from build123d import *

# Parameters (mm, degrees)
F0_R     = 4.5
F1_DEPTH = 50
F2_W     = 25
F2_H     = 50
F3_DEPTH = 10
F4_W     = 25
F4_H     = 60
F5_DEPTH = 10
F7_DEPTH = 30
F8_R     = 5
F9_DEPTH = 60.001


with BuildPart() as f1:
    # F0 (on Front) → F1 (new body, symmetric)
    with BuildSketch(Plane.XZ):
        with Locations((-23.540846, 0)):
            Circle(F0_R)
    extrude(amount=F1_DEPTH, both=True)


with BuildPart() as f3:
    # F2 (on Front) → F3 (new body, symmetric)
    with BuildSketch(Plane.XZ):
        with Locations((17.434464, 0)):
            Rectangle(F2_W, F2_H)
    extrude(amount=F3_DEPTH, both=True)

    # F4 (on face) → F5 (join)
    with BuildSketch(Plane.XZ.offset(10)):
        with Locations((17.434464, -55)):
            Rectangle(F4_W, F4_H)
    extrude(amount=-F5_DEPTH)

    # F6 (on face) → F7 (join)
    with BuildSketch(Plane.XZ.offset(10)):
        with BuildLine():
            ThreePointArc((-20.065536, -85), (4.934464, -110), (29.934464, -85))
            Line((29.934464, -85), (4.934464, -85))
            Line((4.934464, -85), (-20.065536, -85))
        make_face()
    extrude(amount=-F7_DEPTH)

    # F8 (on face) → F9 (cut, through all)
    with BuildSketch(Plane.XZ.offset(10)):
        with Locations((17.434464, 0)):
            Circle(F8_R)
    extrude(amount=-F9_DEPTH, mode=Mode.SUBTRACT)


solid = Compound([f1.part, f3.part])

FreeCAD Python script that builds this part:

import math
import FreeCAD as App
import Part
import Sketcher
from FreeCAD import Vector


def add_polygon(sketch, points):
    """Adds a closed chain of lines whose ends are joined by coincident constraints."""
    first, n = sketch.GeometryCount, len(points)
    for a, b in zip(points, points[1:] + points[:1]):
        sketch.addGeometry(Part.LineSegment(App.Vector(*a, 0), App.Vector(*b, 0)), False)
    for i in range(n):
        sketch.addConstraint(Sketcher.Constraint("Coincident", first + i, 2, first + (i + 1) % n, 1))

doc = App.newDocument("Part")
body = doc.addObject("PartDesign::Body", "Body")

# Sketch on XZ plane
sketch1 = body.newObject("Sketcher::SketchObject", "Sketch")
sketch1.AttachmentSupport = (doc.getObject("XZ_Plane"), [""])
sketch1.MapMode = "FlatFace"
sketch1.addGeometry(Part.Circle(Vector(-23.540846, 0, 0), Vector(0, 0, 1), 4.5), False)
sketch1.addConstraint([
    Sketcher.Constraint("PointOnObject", 0, 3, -1),
    Sketcher.Constraint("Diameter", 0, 9.0),
    Sketcher.Constraint("DistanceX", 0, 3, -1, 1, 23.540846),
])
pad1 = body.newObject("PartDesign::Pad", "Pad")
pad1.Profile = sketch1
pad1.Length = 100
pad1.Midplane = True
body2 = doc.addObject("PartDesign::Body", "Body001")

# Sketch on XZ plane
sketch2 = body2.newObject("Sketcher::SketchObject", "Sketch001")
sketch2.AttachmentSupport = (doc.getObject("XZ_Plane001"), [""])
sketch2.MapMode = "FlatFace"
add_polygon(sketch2, [(4.934464, 25), (4.934464, -25), (29.934464, -25), (29.934464, 25)])  # lines 0-3
sketch2.addConstraint([
    Sketcher.Constraint("Vertical", 0),
    Sketcher.Constraint("Horizontal", 1),
    Sketcher.Constraint("Vertical", 2),
    Sketcher.Constraint("Horizontal", 3),
    Sketcher.Constraint("DistanceX", 1, 1, 1, 2, 25.0),
    Sketcher.Constraint("DistanceY", 0, 2, 0, 1, 50.0),
    Sketcher.Constraint("DistanceY", 0, 2, -1, 1, 25.0),
    Sketcher.Constraint("DistanceX", -1, 1, 0, 2, 4.934464),
])
pad2 = body2.newObject("PartDesign::Pad", "Pad001")
pad2.Profile = sketch2
pad2.Length = 20
pad2.Midplane = True

# Sketch on XZ plane
sketch3 = body2.newObject("Sketcher::SketchObject", "Sketch002")
sketch3.AttachmentSupport = (doc.getObject("XZ_Plane001"), [""])
sketch3.MapMode = "FlatFace"
sketch3.AttachmentOffset = App.Placement(Vector(0, 0, 10), App.Rotation())
add_polygon(sketch3, [(4.934464, -25), (4.934464, -85), (29.934464, -85), (29.934464, -25)])  # lines 0-3
sketch3.addConstraint([
    Sketcher.Constraint("Vertical", 0),
    Sketcher.Constraint("Horizontal", 1),
    Sketcher.Constraint("Vertical", 2),
    Sketcher.Constraint("Horizontal", 3),
    Sketcher.Constraint("DistanceX", 1, 1, 1, 2, 25.0),
    Sketcher.Constraint("DistanceY", 0, 2, 0, 1, 60.0),
    Sketcher.Constraint("DistanceY", 0, 2, -1, 1, 85.0),
    Sketcher.Constraint("DistanceX", -1, 1, 0, 2, 4.934464),
])
pad3 = body2.newObject("PartDesign::Pad", "Pad002")
pad3.Profile = sketch3
pad3.Length = 10
pad3.Reversed = True

# Sketch on XZ plane
sketch4 = body2.newObject("Sketcher::SketchObject", "Sketch003")
sketch4.AttachmentSupport = (doc.getObject("XZ_Plane001"), [""])
sketch4.MapMode = "FlatFace"
sketch4.AttachmentOffset = App.Placement(Vector(0, 0, 10), App.Rotation())
sketch4.addGeometry([
    Part.ArcOfCircle(Part.Circle(Vector(4.934464, -85, 0), Vector(0, 0, 1), 25), math.radians(180), math.radians(360)),
    Part.LineSegment(Vector(29.934464, -85, 0), Vector(-20.065536, -85, 0)),
], False)
sketch4.addConstraint([
    Sketcher.Constraint("Coincident", 0, 1, 1, 2),
    Sketcher.Constraint("Coincident", 1, 1, 0, 2),
    Sketcher.Constraint("Horizontal", 1),
    Sketcher.Constraint("Radius", 0, 25.0),
    Sketcher.Constraint("DistanceY", 0, 3, -1, 1, 85.0),
    Sketcher.Constraint("DistanceY", 0, 1, -1, 1, 85.0),
    Sketcher.Constraint("DistanceX", -1, 1, 0, 3, 4.934464),
])
pad4 = body2.newObject("PartDesign::Pad", "Pad003")
pad4.Profile = sketch4
pad4.Length = 30
pad4.Reversed = True

# Sketch on XZ plane
sketch5 = body2.newObject("Sketcher::SketchObject", "Sketch004")
sketch5.AttachmentSupport = (doc.getObject("XZ_Plane001"), [""])
sketch5.MapMode = "FlatFace"
sketch5.AttachmentOffset = App.Placement(Vector(0, 0, 10), App.Rotation())
sketch5.addGeometry(Part.Circle(Vector(17.434464, 0, 0), Vector(0, 0, 1), 5), False)
sketch5.addConstraint([
    Sketcher.Constraint("PointOnObject", 0, 3, -1),
    Sketcher.Constraint("Diameter", 0, 10.0),
    Sketcher.Constraint("DistanceX", -1, 1, 0, 3, 17.434464),
])
pocket1 = body2.newObject("PartDesign::Pocket", "Pocket")
pocket1.Profile = sketch5
pocket1.Type = "ThroughAll"

doc.recompute()
